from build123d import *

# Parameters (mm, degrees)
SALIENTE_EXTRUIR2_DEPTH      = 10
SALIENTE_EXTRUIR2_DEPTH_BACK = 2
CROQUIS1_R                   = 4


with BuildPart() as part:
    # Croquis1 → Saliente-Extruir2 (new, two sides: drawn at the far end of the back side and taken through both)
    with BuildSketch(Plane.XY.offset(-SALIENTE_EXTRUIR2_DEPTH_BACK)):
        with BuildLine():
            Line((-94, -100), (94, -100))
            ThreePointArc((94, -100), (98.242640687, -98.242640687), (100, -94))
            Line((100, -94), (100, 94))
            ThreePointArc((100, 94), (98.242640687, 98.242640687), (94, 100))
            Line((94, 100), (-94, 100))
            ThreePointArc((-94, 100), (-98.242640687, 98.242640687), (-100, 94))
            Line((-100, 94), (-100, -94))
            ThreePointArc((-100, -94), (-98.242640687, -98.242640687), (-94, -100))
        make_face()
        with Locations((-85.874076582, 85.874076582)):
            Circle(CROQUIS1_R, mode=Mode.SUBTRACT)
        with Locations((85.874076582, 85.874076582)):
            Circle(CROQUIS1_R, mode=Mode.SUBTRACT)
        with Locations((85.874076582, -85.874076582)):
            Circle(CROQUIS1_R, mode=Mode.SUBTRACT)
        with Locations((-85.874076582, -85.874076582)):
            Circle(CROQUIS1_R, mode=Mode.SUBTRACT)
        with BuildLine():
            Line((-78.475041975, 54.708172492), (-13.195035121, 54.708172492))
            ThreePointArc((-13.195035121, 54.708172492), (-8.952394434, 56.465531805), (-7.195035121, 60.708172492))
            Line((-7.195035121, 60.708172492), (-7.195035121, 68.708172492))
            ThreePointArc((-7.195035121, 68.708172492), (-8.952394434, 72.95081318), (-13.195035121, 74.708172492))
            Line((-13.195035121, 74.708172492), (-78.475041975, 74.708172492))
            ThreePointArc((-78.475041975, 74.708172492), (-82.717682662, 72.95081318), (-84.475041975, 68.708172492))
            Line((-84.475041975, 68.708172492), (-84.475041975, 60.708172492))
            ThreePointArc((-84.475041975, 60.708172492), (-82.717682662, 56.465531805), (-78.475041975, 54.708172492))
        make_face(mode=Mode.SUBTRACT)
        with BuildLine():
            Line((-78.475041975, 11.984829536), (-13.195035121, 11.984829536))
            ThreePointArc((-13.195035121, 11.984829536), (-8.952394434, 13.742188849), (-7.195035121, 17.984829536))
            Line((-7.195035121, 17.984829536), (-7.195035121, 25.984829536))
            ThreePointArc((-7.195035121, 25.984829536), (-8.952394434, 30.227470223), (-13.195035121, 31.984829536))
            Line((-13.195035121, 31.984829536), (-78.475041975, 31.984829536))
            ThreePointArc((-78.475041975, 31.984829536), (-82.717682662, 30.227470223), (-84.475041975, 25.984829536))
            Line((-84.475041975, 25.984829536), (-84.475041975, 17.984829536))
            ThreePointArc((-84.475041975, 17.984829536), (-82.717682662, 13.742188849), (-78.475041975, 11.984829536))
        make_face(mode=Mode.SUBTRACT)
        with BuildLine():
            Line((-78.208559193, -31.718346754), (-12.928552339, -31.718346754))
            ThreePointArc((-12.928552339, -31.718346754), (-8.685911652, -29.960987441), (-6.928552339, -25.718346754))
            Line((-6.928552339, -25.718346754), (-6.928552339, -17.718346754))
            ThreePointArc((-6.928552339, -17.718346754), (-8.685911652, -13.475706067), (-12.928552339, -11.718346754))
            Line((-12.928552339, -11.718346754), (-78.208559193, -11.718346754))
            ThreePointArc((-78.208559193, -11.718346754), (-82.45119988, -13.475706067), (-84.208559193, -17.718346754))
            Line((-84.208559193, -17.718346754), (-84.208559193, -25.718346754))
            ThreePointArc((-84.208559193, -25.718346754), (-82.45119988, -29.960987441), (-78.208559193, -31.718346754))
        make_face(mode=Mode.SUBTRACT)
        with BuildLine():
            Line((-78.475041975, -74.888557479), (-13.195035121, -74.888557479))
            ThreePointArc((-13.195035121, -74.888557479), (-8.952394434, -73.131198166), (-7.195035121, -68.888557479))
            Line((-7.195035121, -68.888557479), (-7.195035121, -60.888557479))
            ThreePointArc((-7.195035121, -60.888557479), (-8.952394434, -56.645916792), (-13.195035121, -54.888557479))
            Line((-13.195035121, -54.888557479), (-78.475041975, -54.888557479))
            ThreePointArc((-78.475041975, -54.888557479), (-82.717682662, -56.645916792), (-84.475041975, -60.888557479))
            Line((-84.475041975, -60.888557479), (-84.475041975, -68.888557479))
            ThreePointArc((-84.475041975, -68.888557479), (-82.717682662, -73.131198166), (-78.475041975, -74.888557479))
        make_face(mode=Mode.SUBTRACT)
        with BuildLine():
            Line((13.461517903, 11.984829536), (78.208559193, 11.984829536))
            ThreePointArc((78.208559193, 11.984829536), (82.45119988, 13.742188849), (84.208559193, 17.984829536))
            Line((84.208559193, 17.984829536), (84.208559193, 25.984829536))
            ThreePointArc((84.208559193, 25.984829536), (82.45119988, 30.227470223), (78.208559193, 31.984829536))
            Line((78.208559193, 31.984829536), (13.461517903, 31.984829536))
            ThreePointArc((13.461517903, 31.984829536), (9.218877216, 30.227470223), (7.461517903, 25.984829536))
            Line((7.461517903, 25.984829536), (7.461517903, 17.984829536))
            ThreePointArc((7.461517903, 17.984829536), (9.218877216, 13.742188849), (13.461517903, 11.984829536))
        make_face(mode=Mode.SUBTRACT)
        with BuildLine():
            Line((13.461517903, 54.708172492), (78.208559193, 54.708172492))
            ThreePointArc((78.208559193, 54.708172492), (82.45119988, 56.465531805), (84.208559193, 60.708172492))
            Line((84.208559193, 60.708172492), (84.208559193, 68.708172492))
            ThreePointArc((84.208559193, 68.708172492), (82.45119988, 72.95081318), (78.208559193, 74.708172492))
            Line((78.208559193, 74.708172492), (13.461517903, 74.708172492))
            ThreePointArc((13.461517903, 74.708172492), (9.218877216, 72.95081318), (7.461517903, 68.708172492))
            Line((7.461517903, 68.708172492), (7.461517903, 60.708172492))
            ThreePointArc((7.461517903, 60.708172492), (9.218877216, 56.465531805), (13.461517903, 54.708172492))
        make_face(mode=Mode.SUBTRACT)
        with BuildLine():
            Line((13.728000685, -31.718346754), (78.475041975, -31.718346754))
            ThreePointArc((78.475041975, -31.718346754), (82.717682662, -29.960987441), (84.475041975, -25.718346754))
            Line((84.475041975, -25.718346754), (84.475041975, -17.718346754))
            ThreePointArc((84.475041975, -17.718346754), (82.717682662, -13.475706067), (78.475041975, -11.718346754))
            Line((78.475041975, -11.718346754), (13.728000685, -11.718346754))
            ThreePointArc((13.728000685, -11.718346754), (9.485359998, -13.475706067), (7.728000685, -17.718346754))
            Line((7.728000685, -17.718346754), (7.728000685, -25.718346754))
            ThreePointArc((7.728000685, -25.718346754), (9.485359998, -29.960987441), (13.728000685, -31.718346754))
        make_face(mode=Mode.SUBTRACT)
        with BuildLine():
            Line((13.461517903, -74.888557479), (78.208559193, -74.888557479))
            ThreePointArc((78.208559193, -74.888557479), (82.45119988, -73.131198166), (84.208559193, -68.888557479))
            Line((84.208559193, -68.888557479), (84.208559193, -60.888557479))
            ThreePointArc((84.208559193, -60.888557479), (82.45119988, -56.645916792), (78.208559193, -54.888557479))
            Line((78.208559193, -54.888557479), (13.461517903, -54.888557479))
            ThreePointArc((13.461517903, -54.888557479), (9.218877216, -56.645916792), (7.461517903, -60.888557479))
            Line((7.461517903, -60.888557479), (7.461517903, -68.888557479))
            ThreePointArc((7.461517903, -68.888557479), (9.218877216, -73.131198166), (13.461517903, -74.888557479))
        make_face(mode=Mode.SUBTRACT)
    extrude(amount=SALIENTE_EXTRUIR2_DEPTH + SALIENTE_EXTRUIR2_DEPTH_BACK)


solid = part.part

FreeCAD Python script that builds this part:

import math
import FreeCAD as App
import Part
import Sketcher

V = App.Vector

doc = App.newDocument("Part")
body = doc.addObject("PartDesign::Body", "Body")

sketch1 = body.newObject("Sketcher::SketchObject", "Sketch")
sketch1.AttachmentSupport = (doc.getObject("XY_Plane"), [""])
sketch1.MapMode = "FlatFace"
sketch1.addGeometry([
    Part.LineSegment(V(-94, -100, 0), V(94, -100, 0)),
    Part.ArcOfCircle(Part.Circle(V(94, -94, 0), V(0, 0, 1), 6), math.radians(-90), math.radians(0)),
    Part.LineSegment(V(100, -94, 0), V(100, 94, 0)),
    Part.ArcOfCircle(Part.Circle(V(94, 94, 0), V(0, 0, 1), 6), math.radians(0), math.radians(90)),
    Part.LineSegment(V(94, 100, 0), V(-94, 100, 0)),
    Part.ArcOfCircle(Part.Circle(V(-94, 94, 0), V(0, 0, 1), 6), math.radians(90), math.radians(180)),
    Part.LineSegment(V(-100, 94, 0), V(-100, -94, 0)),
    Part.ArcOfCircle(Part.Circle(V(-94, -94, 0), V(0, 0, 1), 6), math.radians(180), math.radians(270)),
    Part.Circle(V(-85.874077, -85.874077, 0), V(0, 0, 1), 4),
    Part.LineSegment(V(-13.195035, -74.888557, 0), V(-78.475042, -74.888557, 0)),
    Part.ArcOfCircle(Part.Circle(V(-78.475042, -68.888557, 0), V(0, 0, 1), 6), math.radians(180), math.radians(270)),
    Part.LineSegment(V(-84.475042, -68.888557, 0), V(-84.475042, -60.888557, 0)),
    Part.ArcOfCircle(Part.Circle(V(-78.475042, -60.888557, 0), V(0, 0, 1), 6), math.radians(90), math.radians(180)),
    Part.LineSegment(V(-78.475042, -54.888557, 0), V(-13.195035, -54.888557, 0)),
    Part.ArcOfCircle(Part.Circle(V(-13.195035, -60.888557, 0), V(0, 0, 1), 6), math.radians(0), math.radians(90)),
    Part.LineSegment(V(-7.195035, -60.888557, 0), V(-7.195035, -68.888557, 0)),
    Part.ArcOfCircle(Part.Circle(V(-13.195035, -68.888557, 0), V(0, 0, 1), 6), math.radians(-90), math.radians(0)),
    Part.LineSegment(V(-12.928552, -31.718347, 0), V(-78.208559, -31.718347, 0)),
    Part.ArcOfCircle(Part.Circle(V(-78.208559, -25.718347, 0), V(0, 0, 1), 6), math.radians(180), math.radians(270)),
    Part.LineSegment(V(-84.208559, -25.718347, 0), V(-84.208559, -17.718347, 0)),
    Part.ArcOfCircle(Part.Circle(V(-78.208559, -17.718347, 0), V(0, 0, 1), 6), math.radians(90), math.radians(180)),
    Part.LineSegment(V(-78.208559, -11.718347, 0), V(-12.928552, -11.718347, 0)),
    Part.ArcOfCircle(Part.Circle(V(-12.928552, -17.718347, 0), V(0, 0, 1), 6), math.radians(0), math.radians(90)),
    Part.LineSegment(V(-6.928552, -17.718347, 0), V(-6.928552, -25.718347, 0)),
    Part.ArcOfCircle(Part.Circle(V(-12.928552, -25.718347, 0), V(0, 0, 1), 6), math.radians(-90), math.radians(0)),
    Part.Circle(V(85.874077, -85.874077, 0), V(0, 0, 1), 4),
    Part.LineSegment(V(78.208559, -74.888557, 0), V(13.461518, -74.888557, 0)),
    Part.ArcOfCircle(Part.Circle(V(13.461518, -68.888557, 0), V(0, 0, 1), 6), math.radians(180), math.radians(270)),
    Part.LineSegment(V(7.461518, -68.888557, 0), V(7.461518, -60.888557, 0)),
    Part.ArcOfCircle(Part.Circle(V(13.461518, -60.888557, 0), V(0, 0, 1), 6), math.radians(90), math.radians(180)),
    Part.LineSegment(V(13.461518, -54.888557, 0), V(78.208559, -54.888557, 0)),
    Part.ArcOfCircle(Part.Circle(V(78.208559, -60.888557, 0), V(0, 0, 1), 6), math.radians(0), math.radians(90)),
    Part.LineSegment(V(84.208559, -60.888557, 0), V(84.208559, -68.888557, 0)),
    Part.ArcOfCircle(Part.Circle(V(78.208559, -68.888557, 0), V(0, 0, 1), 6), math.radians(-90), math.radians(0)),
    Part.LineSegment(V(78.475042, -31.718347, 0), V(13.728001, -31.718347, 0)),
    Part.ArcOfCircle(Part.Circle(V(13.728001, -25.718347, 0), V(0, 0, 1), 6), math.radians(180), math.radians(270)),
    Part.LineSegment(V(7.728001, -25.718347, 0), V(7.728001, -17.718347, 0)),
    Part.ArcOfCircle(Part.Circle(V(13.728001, -17.718347, 0), V(0, 0, 1), 6), math.radians(90), math.radians(180)),
    Part.LineSegment(V(13.728001, -11.718347, 0), V(78.475042, -11.718347, 0)),
    Part.ArcOfCircle(Part.Circle(V(78.475042, -17.718347, 0), V(0, 0, 1), 6), math.radians(0), math.radians(90)),
    Part.LineSegment(V(84.475042, -17.718347, 0), V(84.475042, -25.718347, 0)),
    Part.ArcOfCircle(Part.Circle(V(78.475042, -25.718347, 0), V(0, 0, 1), 6), math.radians(-90), math.radians(0)),
    Part.LineSegment(V(-13.195035, 11.98483, 0), V(-78.475042, 11.98483, 0)),
    Part.ArcOfCircle(Part.Circle(V(-78.475042, 17.98483, 0), V(0, 0, 1), 6), math.radians(180), math.radians(270)),
    Part.LineSegment(V(-84.475042, 17.98483, 0), V(-84.475042, 25.98483, 0)),
    Part.ArcOfCircle(Part.Circle(V(-78.475042, 25.98483, 0), V(0, 0, 1), 6), math.radians(90), math.radians(180)),
    Part.LineSegment(V(-78.475042, 31.98483, 0), V(-13.195035, 31.98483, 0)),
    Part.ArcOfCircle(Part.Circle(V(-13.195035, 25.98483, 0), V(0, 0, 1), 6), math.radians(0), math.radians(90)),
    Part.LineSegment(V(-7.195035, 25.98483, 0), V(-7.195035, 17.98483, 0)),
    Part.ArcOfCircle(Part.Circle(V(-13.195035, 17.98483, 0), V(0, 0, 1), 6), math.radians(-90), math.radians(0)),
    Part.LineSegment(V(-13.195035, 54.708172, 0), V(-78.475042, 54.708172, 0)),
    Part.ArcOfCircle(Part.Circle(V(-78.475042, 60.708172, 0), V(0, 0, 1), 6), math.radians(180), math.radians(270)),
    Part.LineSegment(V(-84.475042, 60.708172, 0), V(-84.475042, 68.708172, 0)),
    Part.ArcOfCircle(Part.Circle(V(-78.475042, 68.708172, 0), V(0, 0, 1), 6), math.radians(90), math.radians(180)),
    Part.LineSegment(V(-78.475042, 74.708172, 0), V(-13.195035, 74.708172, 0)),
    Part.ArcOfCircle(Part.Circle(V(-13.195035, 68.708172, 0), V(0, 0, 1), 6), math.radians(0), math.radians(90)),
    Part.LineSegment(V(-7.195035, 68.708172, 0), V(-7.195035, 60.708172, 0)),
    Part.ArcOfCircle(Part.Circle(V(-13.195035, 60.708172, 0), V(0, 0, 1), 6), math.radians(-90), math.radians(0)),
    Part.Circle(V(-85.874077, 85.874077, 0), V(0, 0, 1), 4),
    Part.LineSegment(V(78.208559, 11.98483, 0), V(13.461518, 11.98483, 0)),
    Part.ArcOfCircle(Part.Circle(V(13.461518, 17.98483, 0), V(0, 0, 1), 6), math.radians(180), math.radians(270)),
    Part.LineSegment(V(7.461518, 17.98483, 0), V(7.461518, 25.98483, 0)),
    Part.ArcOfCircle(Part.Circle(V(13.461518, 25.98483, 0), V(0, 0, 1), 6), math.radians(90), math.radians(180)),
    Part.LineSegment(V(13.461518, 31.98483, 0), V(78.208559, 31.98483, 0)),
    Part.ArcOfCircle(Part.Circle(V(78.208559, 25.98483, 0), V(0, 0, 1), 6), math.radians(0), math.radians(90)),
    Part.LineSegment(V(84.208559, 25.98483, 0), V(84.208559, 17.98483, 0)),
    Part.ArcOfCircle(Part.Circle(V(78.208559, 17.98483, 0), V(0, 0, 1), 6), math.radians(-90), math.radians(0)),
    Part.LineSegment(V(78.208559, 54.708172, 0), V(13.461518, 54.708172, 0)),
    Part.ArcOfCircle(Part.Circle(V(13.461518, 60.708172, 0), V(0, 0, 1), 6), math.radians(180), math.radians(270)),
    Part.LineSegment(V(7.461518, 60.708172, 0), V(7.461518, 68.708172, 0)),
    Part.ArcOfCircle(Part.Circle(V(13.461518, 68.708172, 0), V(0, 0, 1), 6), math.radians(90), math.radians(180)),
    Part.LineSegment(V(13.461518, 74.708172, 0), V(78.208559, 74.708172, 0)),
    Part.ArcOfCircle(Part.Circle(V(78.208559, 68.708172, 0), V(0, 0, 1), 6), math.radians(0), math.radians(90)),
    Part.LineSegment(V(84.208559, 68.708172, 0), V(84.208559, 60.708172, 0)),
    Part.ArcOfCircle(Part.Circle(V(78.208559, 60.708172, 0), V(0, 0, 1), 6), math.radians(-90), math.radians(0)),
    Part.Circle(V(85.874077, 85.874077, 0), V(0, 0, 1), 4),
], False)
sketch1.addConstraint([
    Sketcher.Constraint("Tangent", 0, 2, 1, 1),
    Sketcher.Constraint("Tangent", 1, 2, 2, 1),
    Sketcher.Constraint("Tangent", 2, 2, 3, 1),
    Sketcher.Constraint("Tangent", 3, 2, 4, 1),
    Sketcher.Constraint("Tangent", 4, 2, 5, 1),
    Sketcher.Constraint("Tangent", 5, 2, 6, 1),
    Sketcher.Constraint("Tangent", 6, 2, 7, 1),
    Sketcher.Constraint("Tangent", 7, 2, 0, 1),
    Sketcher.Constraint("Tangent", 9, 2, 10, 2),
    Sketcher.Constraint("Tangent", 10, 1, 11, 1),
    Sketcher.Constraint("Tangent", 11, 2, 12, 2),
    Sketcher.Constraint("Tangent", 12, 1, 13, 1),
    Sketcher.Constraint("Tangent", 13, 2, 14, 2),
    Sketcher.Constraint("Tangent", 14, 1, 15, 1),
    Sketcher.Constraint("Tangent", 15, 2, 16, 2),
    Sketcher.Constraint("Tangent", 16, 1, 9, 1),
    Sketcher.Constraint("Tangent", 17, 2, 18, 2),
    Sketcher.Constraint("Tangent", 18, 1, 19, 1),
    Sketcher.Constraint("Tangent", 19, 2, 20, 2),
    Sketcher.Constraint("Tangent", 20, 1, 21, 1),
    Sketcher.Constraint("Tangent", 21, 2, 22, 2),
    Sketcher.Constraint("Tangent", 22, 1, 23, 1),
    Sketcher.Constraint("Tangent", 23, 2, 24, 2),
    Sketcher.Constraint("Tangent", 24, 1, 17, 1),
    Sketcher.Constraint("Tangent", 26, 2, 27, 2),
    Sketcher.Constraint("Tangent", 27, 1, 28, 1),
    Sketcher.Constraint("Tangent", 28, 2, 29, 2),
    Sketcher.Constraint("Tangent", 29, 1, 30, 1),
    Sketcher.Constraint("Tangent", 30, 2, 31, 2),
    Sketcher.Constraint("Tangent", 31, 1, 32, 1),
    Sketcher.Constraint("Tangent", 32, 2, 33, 2),
    Sketcher.Constraint("Tangent", 33, 1, 26, 1),
    Sketcher.Constraint("Tangent", 34, 2, 35, 2),
    Sketcher.Constraint("Tangent", 35, 1, 36, 1),
    Sketcher.Constraint("Tangent", 36, 2, 37, 2),
    Sketcher.Constraint("Tangent", 37, 1, 38, 1),
    Sketcher.Constraint("Tangent", 38, 2, 39, 2),
    Sketcher.Constraint("Tangent", 39, 1, 40, 1),
    Sketcher.Constraint("Tangent", 40, 2, 41, 2),
    Sketcher.Constraint("Tangent", 41, 1, 34, 1),
    Sketcher.Constraint("Tangent", 42, 2, 43, 2),
    Sketcher.Constraint("Tangent", 43, 1, 44, 1),
    Sketcher.Constraint("Tangent", 44, 2, 45, 2),
    Sketcher.Constraint("Tangent", 45, 1, 46, 1),
    Sketcher.Constraint("Tangent", 46, 2, 47, 2),
    Sketcher.Constraint("Tangent", 47, 1, 48, 1),
    Sketcher.Constraint("Tangent", 48, 2, 49, 2),
    Sketcher.Constraint("Tangent", 49, 1, 42, 1),
    Sketcher.Constraint("Tangent", 50, 2, 51, 2),
    Sketcher.Constraint("Tangent", 51, 1, 52, 1),
    Sketcher.Constraint("Tangent", 52, 2, 53, 2),
    Sketcher.Constraint("Tangent", 53, 1, 54, 1),
    Sketcher.Constraint("Tangent", 54, 2, 55, 2),
    Sketcher.Constraint("Tangent", 55, 1, 56, 1),
    Sketcher.Constraint("Tangent", 56, 2, 57, 2),
    Sketcher.Constraint("Tangent", 57, 1, 50, 1),
    Sketcher.Constraint("Tangent", 59, 2, 60, 2),
    Sketcher.Constraint("Tangent", 60, 1, 61, 1),
    Sketcher.Constraint("Tangent", 61, 2, 62, 2),
    Sketcher.Constraint("Tangent", 62, 1, 63, 1),
    Sketcher.Constraint("Tangent", 63, 2, 64, 2),
    Sketcher.Constraint("Tangent", 64, 1, 65, 1),
    Sketcher.Constraint("Tangent", 65, 2, 66, 2),
    Sketcher.Constraint("Tangent", 66, 1, 59, 1),
    Sketcher.Constraint("Tangent", 67, 2, 68, 2),
    Sketcher.Constraint("Tangent", 68, 1, 69, 1),
    Sketcher.Constraint("Tangent", 69, 2, 70, 2),
    Sketcher.Constraint("Tangent", 70, 1, 71, 1),
    Sketcher.Constraint("Tangent", 71, 2, 72, 2),
    Sketcher.Constraint("Tangent", 72, 1, 73, 1),
    Sketcher.Constraint("Tangent", 73, 2, 74, 2),
    Sketcher.Constraint("Tangent", 74, 1, 67, 1),
    Sketcher.Constraint("Horizontal", 0),
    Sketcher.Constraint("Vertical", 2),
    Sketcher.Constraint("Horizontal", 4),
    Sketcher.Constraint("Vertical", 6),
    Sketcher.Constraint("Horizontal", 9),
    Sketcher.Constraint("Vertical", 11),
    Sketcher.Constraint("Horizontal", 13),
    Sketcher.Constraint("Vertical", 15),
    Sketcher.Constraint("Horizontal", 17),
    Sketcher.Constraint("Vertical", 19),
    Sketcher.Constraint("Horizontal", 21),
    Sketcher.Constraint("Vertical", 23),
    Sketcher.Constraint("Horizontal", 26),
    Sketcher.Constraint("Vertical", 28),
    Sketcher.Constraint("Horizontal", 30),
    Sketcher.Constraint("Vertical", 32),
    Sketcher.Constraint("Horizontal", 34),
    Sketcher.Constraint("Vertical", 36),
    Sketcher.Constraint("Horizontal", 38),
    Sketcher.Constraint("Vertical", 40),
    Sketcher.Constraint("Horizontal", 42),
    Sketcher.Constraint("Vertical", 44),
    Sketcher.Constraint("Horizontal", 46),
    Sketcher.Constraint("Vertical", 48),
    Sketcher.Constraint("Horizontal", 50),
    Sketcher.Constraint("Vertical", 52),
    Sketcher.Constraint("Horizontal", 54),
    Sketcher.Constraint("Vertical", 56),
    Sketcher.Constraint("Horizontal", 59),
    Sketcher.Constraint("Vertical", 61),
    Sketcher.Constraint("Horizontal", 63),
    Sketcher.Constraint("Vertical", 65),
    Sketcher.Constraint("Horizontal", 67),
    Sketcher.Constraint("Vertical", 69),
    Sketcher.Constraint("Horizontal", 71),
    Sketcher.Constraint("Vertical", 73),
    Sketcher.Constraint("Equal", 1, 3),
    Sketcher.Constraint("Equal", 3, 5),
    Sketcher.Constraint("Equal", 5, 7),
    Sketcher.Constraint("Equal", 7, 10),
    Sketcher.Constraint("Equal", 10, 12),
    Sketcher.Constraint("Equal", 12, 14),
    Sketcher.Constraint("Equal", 14, 16),
    Sketcher.Constraint("Equal", 16, 18),
    Sketcher.Constraint("Equal", 18, 20),
    Sketcher.Constraint("Equal", 20, 22),
    Sketcher.Constraint("Equal", 22, 24),
    Sketcher.Constraint("Equal", 8, 25),
    Sketcher.Constraint("Equal", 24, 27),
    Sketcher.Constraint("Equal", 27, 29),
    Sketcher.Constraint("Equal", 29, 31),
    Sketcher.Constraint("Equal", 31, 33),
    Sketcher.Constraint("Equal", 33, 35),
    Sketcher.Constraint("Equal", 35, 37),
    Sketcher.Constraint("Equal", 37, 39),
    Sketcher.Constraint("Equal", 39, 41),
    Sketcher.Constraint("Equal", 41, 43),
    Sketcher.Constraint("Equal", 43, 45),
    Sketcher.Constraint("Equal", 45, 47),
    Sketcher.Constraint("Equal", 47, 49),
    Sketcher.Constraint("Equal", 49, 51),
    Sketcher.Constraint("Equal", 51, 53),
    Sketcher.Constraint("Equal", 53, 55),
    Sketcher.Constraint("Equal", 55, 57),
    Sketcher.Constraint("Equal", 25, 58),
    Sketcher.Constraint("Equal", 57, 60),
    Sketcher.Constraint("Equal", 60, 62),
    Sketcher.Constraint("Equal", 62, 64),
    Sketcher.Constraint("Equal", 64, 66),
    Sketcher.Constraint("Equal", 66, 68),
    Sketcher.Constraint("Equal", 68, 70),
    Sketcher.Constraint("Equal", 70, 72),
    Sketcher.Constraint("Equal", 72, 74),
    Sketcher.Constraint("Equal", 58, 75),
    Sketcher.Constraint("Symmetric", 1, 3, 5, 3, -1, 1),
    Sketcher.Constraint("Symmetric", 25, 3, 58, 3, -1, 1),
    Sketcher.Constraint("Symmetric", 8, 3, 75, 3, -1, 1),
    Sketcher.Constraint("Symmetric", 8, 3, 25, 3, -2),
    Sketcher.Constraint("Horizontal", 16, 3, 27, 3),
    Sketcher.Constraint("Horizontal", 14, 3, 29, 3),
    Sketcher.Constraint("Horizontal", 24, 3, 35, 3),
    Sketcher.Constraint("Horizontal", 22, 3, 37, 3),
    Sketcher.Constraint("Horizontal", 49, 3, 60, 3),
    Sketcher.Constraint("Horizontal", 47, 3, 62, 3),
    Sketcher.Constraint("Horizontal", 57, 3, 68, 3),
    Sketcher.Constraint("Horizontal", 55, 3, 70, 3),
    Sketcher.Constraint("Vertical", 12, 3, 43, 3),
    Sketcher.Constraint("Vertical", 16, 3, 47, 3),
    Sketcher.Constraint("Vertical", 45, 3, 51, 3),
    Sketcher.Constraint("Vertical", 49, 3, 55, 3),
    Sketcher.Constraint("Vertical", 29, 3, 60, 3),
    Sketcher.Constraint("Vertical", 33, 3, 64, 3),
    Sketcher.Constraint("Vertical", 62, 3, 68, 3),
    Sketcher.Constraint("Vertical", 66, 3, 72, 3),
    Sketcher.Constraint("Equal", 13, 17),
    Sketcher.Constraint("Equal", 30, 34),
    Sketcher.Constraint("Equal", 4, 2),
    Sketcher.Constraint("Equal", 15, 19),
    Sketcher.Constraint("Equal", 40, 44),
    Sketcher.Constraint("Equal", 48, 52),
    Sketcher.Constraint("Diameter", 8, 8.0),
    Sketcher.Constraint("Radius", 1, 6.0),
    Sketcher.Constraint("DistanceX", 0, 1, 0, 2, 188.0),
    Sketcher.Constraint("DistanceY", 11, 1, 11, 2, 8.0),
    Sketcher.Constraint("DistanceX", -1, 1, 35, 3, 13.728001),
    Sketcher.Constraint("DistanceX", 26, 2, 26, 1, 64.747041),
    Sketcher.Constraint("DistanceX", 9, 2, 9, 1, 65.280007),
    Sketcher.Constraint("DistanceX", 10, 3, -1, 1, 78.475042),
    Sketcher.Constraint("DistanceX", 18, 3, -1, 1, 78.208559),
    Sketcher.Constraint("DistanceX", -1, 1, 31, 3, 78.208559),
    Sketcher.Constraint("DistanceY", -1, 1, 43, 3, 17.98483),
    Sketcher.Constraint("DistanceX", 8, 3, -1, 1, 85.874077),
    Sketcher.Constraint("DistanceY", 8, 3, -1, 1, 85.874077),
    Sketcher.Constraint("DistanceY", 10, 3, -1, 1, 68.888557),
    Sketcher.Constraint("DistanceY", 18, 3, -1, 1, 25.718347),
    Sketcher.Constraint("DistanceY", -1, 1, 51, 3, 60.708172),
])
pad1 = body.newObject("PartDesign::Pad", "Pad")
pad1.Profile = sketch1
pad1.Type = "TwoLengths"
pad1.Length = 10
pad1.Length2 = 2

doc.recompute()
